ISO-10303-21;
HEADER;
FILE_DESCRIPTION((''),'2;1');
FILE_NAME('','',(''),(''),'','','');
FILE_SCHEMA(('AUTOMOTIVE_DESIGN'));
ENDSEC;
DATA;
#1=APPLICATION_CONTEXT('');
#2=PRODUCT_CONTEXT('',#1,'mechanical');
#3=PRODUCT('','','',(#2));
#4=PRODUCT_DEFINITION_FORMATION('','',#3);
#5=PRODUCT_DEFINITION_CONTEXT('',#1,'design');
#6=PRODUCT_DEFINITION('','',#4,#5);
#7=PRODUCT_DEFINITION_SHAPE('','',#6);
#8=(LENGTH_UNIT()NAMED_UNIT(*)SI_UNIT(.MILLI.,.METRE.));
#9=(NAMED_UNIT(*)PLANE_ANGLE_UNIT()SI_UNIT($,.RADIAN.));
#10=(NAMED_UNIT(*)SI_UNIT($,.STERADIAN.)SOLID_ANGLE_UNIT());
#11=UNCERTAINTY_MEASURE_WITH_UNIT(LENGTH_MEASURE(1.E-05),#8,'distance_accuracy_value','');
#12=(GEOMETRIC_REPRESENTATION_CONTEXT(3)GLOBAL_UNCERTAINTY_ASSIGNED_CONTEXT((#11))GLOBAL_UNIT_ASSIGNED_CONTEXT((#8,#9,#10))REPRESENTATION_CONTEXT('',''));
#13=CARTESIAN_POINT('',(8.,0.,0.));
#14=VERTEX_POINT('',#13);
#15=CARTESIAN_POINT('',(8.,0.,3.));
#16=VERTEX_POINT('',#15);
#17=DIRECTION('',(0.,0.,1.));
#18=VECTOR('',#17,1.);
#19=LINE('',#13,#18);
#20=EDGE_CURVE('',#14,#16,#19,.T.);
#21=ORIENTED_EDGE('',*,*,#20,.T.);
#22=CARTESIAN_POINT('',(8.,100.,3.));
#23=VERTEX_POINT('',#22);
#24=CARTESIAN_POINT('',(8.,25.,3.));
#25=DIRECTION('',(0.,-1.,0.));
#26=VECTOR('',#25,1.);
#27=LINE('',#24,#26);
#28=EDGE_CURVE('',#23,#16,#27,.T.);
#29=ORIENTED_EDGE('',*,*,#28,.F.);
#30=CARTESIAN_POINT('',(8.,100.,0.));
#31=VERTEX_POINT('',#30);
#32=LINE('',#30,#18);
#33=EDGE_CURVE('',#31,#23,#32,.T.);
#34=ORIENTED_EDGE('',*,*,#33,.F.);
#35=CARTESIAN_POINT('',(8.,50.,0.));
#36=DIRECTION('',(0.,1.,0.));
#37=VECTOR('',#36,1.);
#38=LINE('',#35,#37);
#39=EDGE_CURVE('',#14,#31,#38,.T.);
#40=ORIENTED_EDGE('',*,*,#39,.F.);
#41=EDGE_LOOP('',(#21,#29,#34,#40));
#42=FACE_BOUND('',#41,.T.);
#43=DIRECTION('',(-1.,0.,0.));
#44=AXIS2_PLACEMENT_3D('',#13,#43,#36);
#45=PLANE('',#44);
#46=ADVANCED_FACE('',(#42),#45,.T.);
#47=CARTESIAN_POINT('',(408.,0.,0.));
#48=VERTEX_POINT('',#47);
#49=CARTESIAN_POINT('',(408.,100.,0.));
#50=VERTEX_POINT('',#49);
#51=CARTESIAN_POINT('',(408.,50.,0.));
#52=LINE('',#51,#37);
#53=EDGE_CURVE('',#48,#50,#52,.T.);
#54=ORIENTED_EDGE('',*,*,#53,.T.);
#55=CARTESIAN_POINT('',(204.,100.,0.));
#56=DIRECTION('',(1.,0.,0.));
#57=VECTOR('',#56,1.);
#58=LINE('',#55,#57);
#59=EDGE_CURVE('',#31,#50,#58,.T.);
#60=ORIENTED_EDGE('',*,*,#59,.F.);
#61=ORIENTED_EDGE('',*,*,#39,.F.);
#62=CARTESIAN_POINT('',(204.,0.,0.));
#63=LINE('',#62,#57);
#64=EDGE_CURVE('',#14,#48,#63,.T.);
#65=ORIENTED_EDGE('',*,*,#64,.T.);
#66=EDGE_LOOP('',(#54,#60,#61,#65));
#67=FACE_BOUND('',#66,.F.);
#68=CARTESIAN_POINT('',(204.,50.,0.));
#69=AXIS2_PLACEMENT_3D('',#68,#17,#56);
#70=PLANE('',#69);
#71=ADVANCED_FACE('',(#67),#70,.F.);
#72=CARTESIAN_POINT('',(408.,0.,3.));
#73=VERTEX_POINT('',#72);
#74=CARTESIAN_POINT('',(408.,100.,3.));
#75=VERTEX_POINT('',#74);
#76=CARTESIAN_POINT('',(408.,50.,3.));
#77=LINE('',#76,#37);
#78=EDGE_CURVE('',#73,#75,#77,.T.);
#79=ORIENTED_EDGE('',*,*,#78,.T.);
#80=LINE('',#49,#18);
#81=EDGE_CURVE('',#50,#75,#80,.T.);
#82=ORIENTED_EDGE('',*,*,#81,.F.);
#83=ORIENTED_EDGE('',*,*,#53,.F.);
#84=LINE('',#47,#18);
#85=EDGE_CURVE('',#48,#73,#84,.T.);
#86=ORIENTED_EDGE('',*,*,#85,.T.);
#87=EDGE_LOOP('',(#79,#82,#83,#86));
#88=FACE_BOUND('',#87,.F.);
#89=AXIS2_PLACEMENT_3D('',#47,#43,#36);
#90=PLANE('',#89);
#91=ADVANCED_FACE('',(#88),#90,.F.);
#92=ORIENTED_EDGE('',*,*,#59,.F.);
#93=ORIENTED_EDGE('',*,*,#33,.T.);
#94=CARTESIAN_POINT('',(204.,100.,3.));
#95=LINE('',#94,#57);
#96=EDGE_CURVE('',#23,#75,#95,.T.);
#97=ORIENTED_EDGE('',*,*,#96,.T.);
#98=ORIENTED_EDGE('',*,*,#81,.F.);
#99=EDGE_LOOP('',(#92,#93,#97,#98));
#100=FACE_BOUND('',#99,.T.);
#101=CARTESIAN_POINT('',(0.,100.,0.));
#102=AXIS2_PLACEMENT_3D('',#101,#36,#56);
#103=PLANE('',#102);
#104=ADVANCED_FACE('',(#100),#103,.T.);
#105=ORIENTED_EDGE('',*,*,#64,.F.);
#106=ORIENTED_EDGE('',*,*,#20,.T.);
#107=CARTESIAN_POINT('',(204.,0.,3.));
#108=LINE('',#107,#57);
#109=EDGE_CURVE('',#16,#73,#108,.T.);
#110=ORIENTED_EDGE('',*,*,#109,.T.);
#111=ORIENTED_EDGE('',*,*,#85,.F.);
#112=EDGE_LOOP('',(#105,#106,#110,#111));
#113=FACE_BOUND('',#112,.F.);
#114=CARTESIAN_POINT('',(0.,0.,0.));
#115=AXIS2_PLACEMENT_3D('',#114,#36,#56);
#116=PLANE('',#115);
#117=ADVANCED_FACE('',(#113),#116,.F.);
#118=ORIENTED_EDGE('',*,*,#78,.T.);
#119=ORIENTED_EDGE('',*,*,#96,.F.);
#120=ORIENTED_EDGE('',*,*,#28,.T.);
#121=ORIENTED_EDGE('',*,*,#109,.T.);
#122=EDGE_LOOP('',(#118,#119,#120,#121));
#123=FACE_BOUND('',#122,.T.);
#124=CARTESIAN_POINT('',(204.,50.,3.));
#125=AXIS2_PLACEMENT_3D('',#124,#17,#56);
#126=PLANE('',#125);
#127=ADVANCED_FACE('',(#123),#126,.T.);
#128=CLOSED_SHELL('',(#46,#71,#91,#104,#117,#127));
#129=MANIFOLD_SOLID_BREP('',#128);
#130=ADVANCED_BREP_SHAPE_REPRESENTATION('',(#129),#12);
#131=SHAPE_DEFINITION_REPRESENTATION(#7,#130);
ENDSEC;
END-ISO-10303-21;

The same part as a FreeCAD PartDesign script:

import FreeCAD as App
import Part
import Sketcher
from FreeCAD import Vector
Q = App.Units.Quantity

doc = App.newDocument("Part")
params = doc.addObject("Spreadsheet::Sheet", "Params")
for row, (alias, value) in enumerate([
    ("sketch1_width", "408 mm"),
    ("sketch1_height", "100 mm"),
    ("pad1_length", "3 mm"),
    ("sketch2_width", "8 mm"),
    ("sketch2_height", "100 mm"),
    ("pocket1_length", "10 mm"),
], start=1):
    params.set(f"A{row}", alias)
    params.set(f"B{row}", "=" + value)
    params.setAlias(f"B{row}", alias)

body = doc.addObject("PartDesign::Body", "Body")

# Sketch on XY plane
sketch1 = body.newObject("Sketcher::SketchObject", "Sketch")
sketch1.AttachmentSupport = (doc.getObject("XY_Plane"), [""])
sketch1.MapMode = "FlatFace"
sketch1.addGeometry(Part.LineSegment(Vector(0, 100, 0), Vector(0, 0, 0)), False)
sketch1.addGeometry(Part.LineSegment(Vector(0, 0, 0), Vector(408, 0, 0)), False)
sketch1.addGeometry(Part.LineSegment(Vector(408, 0, 0), Vector(408, 100, 0)), False)
sketch1.addGeometry(Part.LineSegment(Vector(408, 100, 0), Vector(0, 100, 0)), False)
sketch1.addConstraint(Sketcher.Constraint("Coincident", 0, 2, 1, 1))
sketch1.addConstraint(Sketcher.Constraint("Coincident", 1, 2, 2, 1))
sketch1.addConstraint(Sketcher.Constraint("Coincident", 2, 2, 3, 1))
sketch1.addConstraint(Sketcher.Constraint("Coincident", 3, 2, 0, 1))
sketch1.addConstraint(Sketcher.Constraint("Vertical", 0))
sketch1.addConstraint(Sketcher.Constraint("Horizontal", 1))
sketch1.addConstraint(Sketcher.Constraint("Vertical", 2))
sketch1.addConstraint(Sketcher.Constraint("Horizontal", 3))
sketch1.addConstraint(Sketcher.Constraint("Coincident", 0, 2, -1, 1))
sketch1.addConstraint(Sketcher.Constraint("DistanceX", 1, 1, 1, 2, Q("408 mm")))
sketch1.addConstraint(Sketcher.Constraint("DistanceY", 0, 2, 0, 1, Q("100 mm")))
sketch1.setExpression("Constraints[9]", "Params.sketch1_width")
sketch1.setExpression("Constraints[10]", "Params.sketch1_height")
pad1 = body.newObject("PartDesign::Pad", "Pad")
pad1.Profile = sketch1
pad1.setExpression("Length", "Params.pad1_length")

# Sketch on XY plane
sketch2 = body.newObject("Sketcher::SketchObject", "Sketch001")
sketch2.AttachmentSupport = (doc.getObject("XY_Plane"), [""])
sketch2.MapMode = "FlatFace"
sketch2.addGeometry(Part.LineSegment(Vector(8, 100, 0), Vector(8, 0, 0)), False)
sketch2.addGeometry(Part.LineSegment(Vector(8, 0, 0), Vector(0, 0, 0)), False)
sketch2.addGeometry(Part.LineSegment(Vector(0, 0, 0), Vector(0, 100, 0)), False)
sketch2.addGeometry(Part.LineSegment(Vector(0, 100, 0), Vector(8, 100, 0)), False)
sketch2.addConstraint(Sketcher.Constraint("Coincident", 0, 2, 1, 1))
sketch2.addConstraint(Sketcher.Constraint("Coincident", 1, 2, 2, 1))
sketch2.addConstraint(Sketcher.Constraint("Coincident", 2, 2, 3, 1))
sketch2.addConstraint(Sketcher.Constraint("Coincident", 3, 2, 0, 1))
sketch2.addConstraint(Sketcher.Constraint("Vertical", 0))
sketch2.addConstraint(Sketcher.Constraint("Horizontal", 1))
sketch2.addConstraint(Sketcher.Constraint("Vertical", 2))
sketch2.addConstraint(Sketcher.Constraint("Horizontal", 3))
sketch2.addConstraint(Sketcher.Constraint("Coincident", 1, 2, -1, 1))
sketch2.addConstraint(Sketcher.Constraint("DistanceX", 1, 2, 1, 1, Q("8 mm")))
sketch2.addConstraint(Sketcher.Constraint("DistanceY", 0, 2, 0, 1, Q("100 mm")))
sketch2.setExpression("Constraints[9]", "Params.sketch2_width")
sketch2.setExpression("Constraints[10]", "Params.sketch2_height")
pocket1 = body.newObject("PartDesign::Pocket", "Pocket")
pocket1.Profile = sketch2
pocket1.setExpression("Length", "Params.pocket1_length")
pocket1.Reversed = True

doc.recompute()
